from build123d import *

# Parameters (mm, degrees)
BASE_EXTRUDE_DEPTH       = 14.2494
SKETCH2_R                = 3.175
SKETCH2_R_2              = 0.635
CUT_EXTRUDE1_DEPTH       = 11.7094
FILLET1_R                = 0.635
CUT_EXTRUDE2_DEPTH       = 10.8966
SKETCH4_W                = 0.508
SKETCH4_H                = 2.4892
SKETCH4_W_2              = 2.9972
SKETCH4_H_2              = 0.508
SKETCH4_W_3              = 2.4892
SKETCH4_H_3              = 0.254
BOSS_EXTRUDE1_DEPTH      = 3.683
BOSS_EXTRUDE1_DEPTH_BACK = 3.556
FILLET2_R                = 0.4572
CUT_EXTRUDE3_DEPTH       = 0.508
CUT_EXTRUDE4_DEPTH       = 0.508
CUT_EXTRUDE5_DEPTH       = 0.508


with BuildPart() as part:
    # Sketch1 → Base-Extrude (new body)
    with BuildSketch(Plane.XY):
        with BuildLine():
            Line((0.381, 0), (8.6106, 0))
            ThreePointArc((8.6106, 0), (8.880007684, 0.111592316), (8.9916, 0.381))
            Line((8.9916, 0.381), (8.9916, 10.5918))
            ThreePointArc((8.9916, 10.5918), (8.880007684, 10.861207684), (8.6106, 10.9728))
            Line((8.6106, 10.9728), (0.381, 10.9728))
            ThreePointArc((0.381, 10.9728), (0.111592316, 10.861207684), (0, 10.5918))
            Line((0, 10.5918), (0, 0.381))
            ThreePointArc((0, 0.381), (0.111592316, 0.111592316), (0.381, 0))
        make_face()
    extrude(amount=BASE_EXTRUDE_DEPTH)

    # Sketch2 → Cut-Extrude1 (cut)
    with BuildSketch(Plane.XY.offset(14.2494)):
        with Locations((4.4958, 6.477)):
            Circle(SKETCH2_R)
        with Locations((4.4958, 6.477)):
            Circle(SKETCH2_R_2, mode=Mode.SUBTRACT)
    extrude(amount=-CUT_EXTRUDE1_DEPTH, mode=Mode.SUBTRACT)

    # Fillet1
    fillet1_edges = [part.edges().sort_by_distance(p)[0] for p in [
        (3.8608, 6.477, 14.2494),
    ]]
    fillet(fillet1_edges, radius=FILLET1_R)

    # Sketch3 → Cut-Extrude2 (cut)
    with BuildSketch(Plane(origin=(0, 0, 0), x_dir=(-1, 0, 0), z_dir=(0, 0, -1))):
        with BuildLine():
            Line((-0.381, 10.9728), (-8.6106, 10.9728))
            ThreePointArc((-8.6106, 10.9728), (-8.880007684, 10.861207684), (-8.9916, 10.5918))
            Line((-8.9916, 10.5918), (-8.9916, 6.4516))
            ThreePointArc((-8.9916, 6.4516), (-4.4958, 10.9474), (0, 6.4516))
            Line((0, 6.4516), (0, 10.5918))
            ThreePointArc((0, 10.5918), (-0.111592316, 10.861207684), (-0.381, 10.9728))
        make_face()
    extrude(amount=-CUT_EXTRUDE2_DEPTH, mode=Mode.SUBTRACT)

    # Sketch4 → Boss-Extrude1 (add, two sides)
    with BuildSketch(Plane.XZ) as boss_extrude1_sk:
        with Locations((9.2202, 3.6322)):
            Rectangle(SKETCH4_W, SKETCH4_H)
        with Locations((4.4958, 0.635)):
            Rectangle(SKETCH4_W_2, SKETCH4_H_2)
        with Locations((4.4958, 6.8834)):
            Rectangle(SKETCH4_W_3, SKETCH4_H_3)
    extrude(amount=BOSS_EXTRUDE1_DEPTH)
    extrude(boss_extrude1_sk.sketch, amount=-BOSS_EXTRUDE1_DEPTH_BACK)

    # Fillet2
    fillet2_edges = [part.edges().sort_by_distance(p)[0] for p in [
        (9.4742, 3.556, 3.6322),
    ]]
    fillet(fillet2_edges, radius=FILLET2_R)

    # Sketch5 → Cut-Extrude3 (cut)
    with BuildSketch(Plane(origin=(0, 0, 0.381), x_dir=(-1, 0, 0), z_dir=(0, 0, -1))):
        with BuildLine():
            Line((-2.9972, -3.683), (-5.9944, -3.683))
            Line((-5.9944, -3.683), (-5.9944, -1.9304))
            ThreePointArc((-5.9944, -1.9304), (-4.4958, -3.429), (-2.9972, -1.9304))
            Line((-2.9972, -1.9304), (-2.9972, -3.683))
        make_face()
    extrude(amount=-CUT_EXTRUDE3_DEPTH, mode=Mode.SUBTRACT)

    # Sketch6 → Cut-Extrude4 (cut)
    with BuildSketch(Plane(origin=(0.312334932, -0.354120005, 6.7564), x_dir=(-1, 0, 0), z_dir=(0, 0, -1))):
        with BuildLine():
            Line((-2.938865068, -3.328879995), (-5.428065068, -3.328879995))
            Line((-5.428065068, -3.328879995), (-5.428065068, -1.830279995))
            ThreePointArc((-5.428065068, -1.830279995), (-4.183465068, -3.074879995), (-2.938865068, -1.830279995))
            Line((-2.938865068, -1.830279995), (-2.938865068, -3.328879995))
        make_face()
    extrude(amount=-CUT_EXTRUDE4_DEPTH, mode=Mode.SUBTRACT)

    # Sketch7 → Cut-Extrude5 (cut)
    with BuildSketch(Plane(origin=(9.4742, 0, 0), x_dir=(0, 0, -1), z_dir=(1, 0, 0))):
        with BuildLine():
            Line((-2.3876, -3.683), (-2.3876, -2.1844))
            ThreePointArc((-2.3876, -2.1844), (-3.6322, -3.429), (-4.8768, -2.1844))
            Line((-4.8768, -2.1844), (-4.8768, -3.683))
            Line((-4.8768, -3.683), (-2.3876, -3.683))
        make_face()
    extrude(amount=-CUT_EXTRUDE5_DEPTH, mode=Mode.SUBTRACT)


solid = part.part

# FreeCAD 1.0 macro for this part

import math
import FreeCAD as App
import Part
import Sketcher
from FreeCAD import Vector
Q = App.Units.Quantity


def edges_at(feature, points):
    """Names of the edges that pass closest to the given points."""
    edges = feature.Shape.Edges
    near = lambda p: min(range(len(edges)), key=lambda i: edges[i].distToShape(Part.Vertex(*p))[0])
    return sorted({f"Edge{near(p) + 1}" for p in points})


def add_polygon(sketch, points):
    """Adds a closed chain of lines whose ends are joined by coincident constraints."""
    first, n = sketch.GeometryCount, len(points)
    for a, b in zip(points, points[1:] + points[:1]):
        sketch.addGeometry(Part.LineSegment(App.Vector(*a, 0), App.Vector(*b, 0)), False)
    for i in range(n):
        sketch.addConstraint(Sketcher.Constraint("Coincident", first + i, 2, first + (i + 1) % n, 1))

doc = App.newDocument("Part")
params = doc.addObject("Spreadsheet::Sheet", "Params")
for row, (alias, value) in enumerate([
    ("sketch1_radius", "0.015 in"),
    ("sketch1_width", "0.324 in"),
    ("sketch1_height", "0.402 in"),
    ("pad1_length", "0.561 in"),
    ("sketch2_diameter", "0.25 in"),
    ("sketch2_diameter2", "0.05 in"),
    ("pocket1_length", "0.461 in"),
    ("fillet_radius", "0.025 in"),
    ("sketch3_radius", "0.015 in"),
    ("sketch3_radius2", "0.177 in"),
    ("sketch3_height", "0.163 in"),
    ("pocket2_length", "0.429 in"),
    ("sketch4_width", "0.02 in"),
    ("sketch4_height", "0.01 in"),
    ("sketch4_width2", "0.118 in"),
    ("sketch4_width3", "0.098 in"),
    ("pad2_length", "0.145 in"),
    ("pad2_length2", "0.14 in"),
    ("fillet2_radius", "0.018 in"),
    ("sketch5_radius", "0.059 in"),
    ("sketch5_height", "0.069 in"),
    ("pocket3_length", "0.02 in"),
    ("sketch6_radius", "0.049 in"),
    ("sketch6_height", "0.059 in"),
    ("pocket4_length", "0.02 in"),
    ("sketch7_radius", "0.049 in"),
    ("sketch7_width", "0.059 in"),
    ("pocket5_length", "0.02 in"),
], start=1):
    params.set(f"A{row}", alias)
    params.set(f"B{row}", "=" + value)
    params.setAlias(f"B{row}", alias)

body = doc.addObject("PartDesign::Body", "Body")

# Sketch on XY plane
sketch1 = body.newObject("Sketcher::SketchObject", "Sketch")
sketch1.AttachmentSupport = (doc.getObject("XY_Plane"), [""])
sketch1.MapMode = "FlatFace"
sketch1.addGeometry(Part.LineSegment(Vector(0.38, 0, 0), Vector(8.61, 0, 0)), False)
sketch1.addGeometry(Part.ArcOfCircle(Part.Circle(Vector(8.61, 0.38, 0), Vector(0, 0, 1), 0.38), math.radians(-90), math.radians(0)), False)
sketch1.addGeometry(Part.LineSegment(Vector(8.99, 0.38, 0), Vector(8.99, 10.59, 0)), False)
sketch1.addGeometry(Part.ArcOfCircle(Part.Circle(Vector(8.61, 10.59, 0), Vector(0, 0, 1), 0.38), math.radians(0), math.radians(90)), False)
sketch1.addGeometry(Part.LineSegment(Vector(8.61, 10.97, 0), Vector(0.38, 10.97, 0)), False)
sketch1.addGeometry(Part.ArcOfCircle(Part.Circle(Vector(0.38, 10.59, 0), Vector(0, 0, 1), 0.38), math.radians(90), math.radians(180)), False)
sketch1.addGeometry(Part.LineSegment(Vector(0, 10.59, 0), Vector(0, 0.38, 0)), False)
sketch1.addGeometry(Part.ArcOfCircle(Part.Circle(Vector(0.38, 0.38, 0), Vector(0, 0, 1), 0.38), math.radians(180), math.radians(270)), False)
sketch1.addConstraint(Sketcher.Constraint("Tangent", 0, 2, 1, 1))
sketch1.addConstraint(Sketcher.Constraint("Tangent", 1, 2, 2, 1))
sketch1.addConstraint(Sketcher.Constraint("Tangent", 2, 2, 3, 1))
sketch1.addConstraint(Sketcher.Constraint("Tangent", 3, 2, 4, 1))
sketch1.addConstraint(Sketcher.Constraint("Tangent", 4, 2, 5, 1))
sketch1.addConstraint(Sketcher.Constraint("Tangent", 5, 2, 6, 1))
sketch1.addConstraint(Sketcher.Constraint("Tangent", 6, 2, 7, 1))
sketch1.addConstraint(Sketcher.Constraint("Tangent", 7, 2, 0, 1))
sketch1.addConstraint(Sketcher.Constraint("Horizontal", 0))
sketch1.addConstraint(Sketcher.Constraint("Vertical", 2))
sketch1.addConstraint(Sketcher.Constraint("Horizontal", 4))
sketch1.addConstraint(Sketcher.Constraint("Vertical", 6))
sketch1.addConstraint(Sketcher.Constraint("Equal", 1, 3))
sketch1.addConstraint(Sketcher.Constraint("Equal", 3, 5))
sketch1.addConstraint(Sketcher.Constraint("Equal", 5, 7))
sketch1.addConstraint(Sketcher.Constraint("PointOnObject", 0, 2, -1))
sketch1.addConstraint(Sketcher.Constraint("PointOnObject", 5, 2, -2))
sketch1.addConstraint(Sketcher.Constraint("Radius", 1, Q("0.015 in")))
sketch1.addConstraint(Sketcher.Constraint("DistanceX", 0, 1, 0, 2, Q("0.324 in")))
sketch1.addConstraint(Sketcher.Constraint("DistanceY", 2, 1, 2, 2, Q("0.402 in")))
sketch1.setExpression("Constraints[17]", "Params.sketch1_radius")
sketch1.setExpression("Constraints[18]", "Params.sketch1_width")
sketch1.setExpression("Constraints[19]", "Params.sketch1_height")
pad1 = body.newObject("PartDesign::Pad", "Pad")
pad1.Profile = sketch1
pad1.setExpression("Length", "Params.pad1_length")

# Sketch on XY plane
sketch2 = body.newObject("Sketcher::SketchObject", "Sketch001")
sketch2.AttachmentSupport = (doc.getObject("XY_Plane"), [""])
sketch2.MapMode = "FlatFace"
sketch2.AttachmentOffset = App.Placement(Vector(0, 0, 0.561 * 25.4), App.Rotation())
sketch2.addGeometry(Part.Circle(Vector(4.5, 6.5, 0), Vector(0, 0, 1), 3.2), False)
sketch2.addGeometry(Part.Circle(Vector(4.5, 6.5, 0), Vector(0, 0, 1), 0.6), False)
sketch2.addConstraint(Sketcher.Constraint("Coincident", 1, 3, 0, 3))
sketch2.addConstraint(Sketcher.Constraint("Diameter", 0, Q("0.25 in")))
sketch2.addConstraint(Sketcher.Constraint("Diameter", 1, Q("0.05 in")))
sketch2.addConstraint(Sketcher.Constraint("DistanceX", -1, 1, 0, 3, Q("0.177 in")))
sketch2.addConstraint(Sketcher.Constraint("DistanceY", -1, 1, 0, 3, Q("0.255 in")))
sketch2.setExpression("Constraints[1]", "Params.sketch2_diameter")
sketch2.setExpression("Constraints[2]", "Params.sketch2_diameter2")
pocket1 = body.newObject("PartDesign::Pocket", "Pocket")
pocket1.Profile = sketch2
pocket1.setExpression("Length", "Params.pocket1_length")
doc.recompute()

fillet = body.newObject("PartDesign::Fillet", "Fillet")
fillet.Base = (pocket1, edges_at(pocket1, [(3.861, 6.477, 14.249)]))
fillet.setExpression("Radius", "Params.fillet_radius")

# Sketch on XY plane
sketch3 = body.newObject("Sketcher::SketchObject", "Sketch002")
sketch3.AttachmentSupport = (doc.getObject("XY_Plane"), [""])
sketch3.MapMode = "FlatFace"
sketch3.addGeometry(Part.LineSegment(Vector(0.38, 10.97, 0), Vector(8.61, 10.97, 0)), False)
sketch3.addGeometry(Part.ArcOfCircle(Part.Circle(Vector(8.61, 10.59, 0), Vector(0, 0, 1), 0.38), math.radians(0), math.radians(90)), False)
sketch3.addGeometry(Part.LineSegment(Vector(8.99, 10.59, 0), Vector(8.99, 6.45, 0)), False)
sketch3.addGeometry(Part.ArcOfCircle(Part.Circle(Vector(4.5, 6.45, 0), Vector(0, 0, 1), 4.5), math.radians(0), math.radians(180)), False)
sketch3.addGeometry(Part.LineSegment(Vector(0, 6.45, 0), Vector(0, 10.59, 0)), False)
sketch3.addGeometry(Part.ArcOfCircle(Part.Circle(Vector(0.38, 10.59, 0), Vector(0, 0, 1), 0.38), math.radians(90), math.radians(180)), False)
sketch3.addConstraint(Sketcher.Constraint("Tangent", 0, 2, 1, 2))
sketch3.addConstraint(Sketcher.Constraint("Tangent", 1, 1, 2, 1))
sketch3.addConstraint(Sketcher.Constraint("Tangent", 2, 2, 3, 1))
sketch3.addConstraint(Sketcher.Constraint("Tangent", 3, 2, 4, 1))
sketch3.addConstraint(Sketcher.Constraint("Tangent", 4, 2, 5, 2))
sketch3.addConstraint(Sketcher.Constraint("Tangent", 5, 1, 0, 1))
sketch3.addConstraint(Sketcher.Constraint("Horizontal", 0))
sketch3.addConstraint(Sketcher.Constraint("Vertical", 2))
sketch3.addConstraint(Sketcher.Constraint("Vertical", 4))
sketch3.addConstraint(Sketcher.Constraint("Equal", 1, 5))
sketch3.addConstraint(Sketcher.Constraint("PointOnObject", 3, 2, -2))
sketch3.addConstraint(Sketcher.Constraint("Radius", 1, Q("0.015 in")))
sketch3.addConstraint(Sketcher.Constraint("Radius", 3, Q("0.177 in")))
sketch3.addConstraint(Sketcher.Constraint("DistanceY", 2, 2, 2, 1, Q("0.163 in")))
sketch3.addConstraint(Sketcher.Constraint("DistanceY", -1, 1, 1, 3, Q("0.417 in")))
sketch3.setExpression("Constraints[11]", "Params.sketch3_radius")
sketch3.setExpression("Constraints[12]", "Params.sketch3_radius2")
sketch3.setExpression("Constraints[13]", "Params.sketch3_height")
pocket2 = body.newObject("PartDesign::Pocket", "Pocket001")
pocket2.Profile = sketch3
pocket2.setExpression("Length", "Params.pocket2_length")
pocket2.Reversed = True

# Sketch on XZ plane
sketch4 = body.newObject("Sketcher::SketchObject", "Sketch003")
sketch4.AttachmentSupport = (doc.getObject("XZ_Plane"), [""])
sketch4.MapMode = "FlatFace"
add_polygon(sketch4, [(8.97, 4.88), (8.97, 2.39), (9.47, 2.39), (9.47, 4.88)])  # lines 0-3
add_polygon(sketch4, [(3, 0.89), (3, 0.38), (5.99, 0.38), (5.99, 0.89)])  # lines 4-7
add_polygon(sketch4, [(3.25, 7.01), (3.25, 6.76), (5.74, 6.76), (5.74, 7.01)])  # lines 8-11
sketch4.addConstraint(Sketcher.Constraint("Vertical", 0))
sketch4.addConstraint(Sketcher.Constraint("Horizontal", 1))
sketch4.addConstraint(Sketcher.Constraint("Vertical", 2))
sketch4.addConstraint(Sketcher.Constraint("Horizontal", 3))
sketch4.addConstraint(Sketcher.Constraint("Vertical", 4))
sketch4.addConstraint(Sketcher.Constraint("Horizontal", 5))
sketch4.addConstraint(Sketcher.Constraint("Vertical", 6))
sketch4.addConstraint(Sketcher.Constraint("Horizontal", 7))
sketch4.addConstraint(Sketcher.Constraint("Vertical", 8))
sketch4.addConstraint(Sketcher.Constraint("Horizontal", 9))
sketch4.addConstraint(Sketcher.Constraint("Vertical", 10))
sketch4.addConstraint(Sketcher.Constraint("Horizontal", 11))
sketch4.addConstraint(Sketcher.Constraint("Equal", 11, 0))
sketch4.addConstraint(Sketcher.Constraint("Equal", 3, 4))
sketch4.addConstraint(Sketcher.Constraint("DistanceX", 1, 1, 1, 2, Q("0.02 in")))
sketch4.addConstraint(Sketcher.Constraint("DistanceY", 8, 2, 8, 1, Q("0.01 in")))
sketch4.addConstraint(Sketcher.Constraint("DistanceX", 5, 1, 5, 2, Q("0.118 in")))
sketch4.addConstraint(Sketcher.Constraint("DistanceX", 9, 1, 9, 2, Q("0.098 in")))
sketch4.addConstraint(Sketcher.Constraint("DistanceX", 7, 2, 8, 2, Q("0.01 in")))
sketch4.addConstraint(Sketcher.Constraint("DistanceX", -1, 1, 0, 2, Q("0.353 in")))
sketch4.addConstraint(Sketcher.Constraint("DistanceY", -1, 1, 0, 2, Q("0.094 in")))
sketch4.addConstraint(Sketcher.Constraint("DistanceX", -1, 1, 4, 2, Q("0.118 in")))
sketch4.addConstraint(Sketcher.Constraint("DistanceY", -1, 1, 4, 2, Q("0.015 in")))
sketch4.addConstraint(Sketcher.Constraint("DistanceY", -1, 1, 8, 2, Q("0.266 in")))
sketch4.setExpression("Constraints[26]", "Params.sketch4_width")
sketch4.setExpression("Constraints[27]", "Params.sketch4_height")
sketch4.setExpression("Constraints[28]", "Params.sketch4_width2")
sketch4.setExpression("Constraints[29]", "Params.sketch4_width3")
pad2 = body.newObject("PartDesign::Pad", "Pad001")
pad2.Profile = sketch4
pad2.Type = "TwoLengths"
pad2.setExpression("Length", "Params.pad2_length")
pad2.setExpression("Length2", "Params.pad2_length2")
doc.recompute()

fillet2 = body.newObject("PartDesign::Fillet", "Fillet001")
fillet2.Base = (pad2, edges_at(pad2, [(9.474, 3.556, 3.632)]))
fillet2.setExpression("Radius", "Params.fillet2_radius")

# Sketch on XY plane
sketch5 = body.newObject("Sketcher::SketchObject", "Sketch004")
sketch5.AttachmentSupport = (doc.getObject("XY_Plane"), [""])
sketch5.MapMode = "FlatFace"
sketch5.AttachmentOffset = App.Placement(Vector(0, 0, 0.015 * 25.4), App.Rotation())
sketch5.addGeometry(Part.LineSegment(Vector(6, -3.7, 0), Vector(3, -3.7, 0)), False)
sketch5.addGeometry(Part.LineSegment(Vector(3, -3.7, 0), Vector(3, -1.9, 0)), False)
sketch5.addGeometry(Part.ArcOfCircle(Part.Circle(Vector(4.5, -1.9, 0), Vector(0, 0, 1), 1.5), math.radians(180), math.radians(360)), False)
sketch5.addGeometry(Part.LineSegment(Vector(6, -1.9, 0), Vector(6, -3.7, 0)), False)
sketch5.addConstraint(Sketcher.Constraint("Coincident", 0, 2, 1, 1))
sketch5.addConstraint(Sketcher.Constraint("Tangent", 1, 2, 2, 1))
sketch5.addConstraint(Sketcher.Constraint("Tangent", 2, 2, 3, 1))
sketch5.addConstraint(Sketcher.Constraint("Coincident", 3, 2, 0, 1))
sketch5.addConstraint(Sketcher.Constraint("Horizontal", 0))
sketch5.addConstraint(Sketcher.Constraint("Vertical", 1))
sketch5.addConstraint(Sketcher.Constraint("Vertical", 3))
sketch5.addConstraint(Sketcher.Constraint("Radius", 2, Q("0.059 in")))
sketch5.addConstraint(Sketcher.Constraint("DistanceY", 1, 1, 1, 2, Q("0.069 in")))
sketch5.addConstraint(Sketcher.Constraint("DistanceX", -1, 1, 2, 3, Q("0.177 in")))
sketch5.addConstraint(Sketcher.Constraint("DistanceY", 2, 3, -1, 1, Q("0.076 in")))
sketch5.setExpression("Constraints[7]", "Params.sketch5_radius")
sketch5.setExpression("Constraints[8]", "Params.sketch5_height")
pocket3 = body.newObject("PartDesign::Pocket", "Pocket002")
pocket3.Profile = sketch5
pocket3.setExpression("Length", "Params.pocket3_length")
pocket3.Reversed = True

# Sketch on XY plane
sketch6 = body.newObject("Sketcher::SketchObject", "Sketch005")
sketch6.AttachmentSupport = (doc.getObject("XY_Plane"), [""])
sketch6.MapMode = "FlatFace"
sketch6.AttachmentOffset = App.Placement(Vector(0, 0, 0.266 * 25.4), App.Rotation())
sketch6.addGeometry(Part.LineSegment(Vector(5.7, -3.7, 0), Vector(3.3, -3.7, 0)), False)
sketch6.addGeometry(Part.LineSegment(Vector(3.3, -3.7, 0), Vector(3.3, -2.2, 0)), False)
sketch6.addGeometry(Part.ArcOfCircle(Part.Circle(Vector(4.5, -2.2, 0), Vector(0, 0, 1), 1.2), math.radians(180), math.radians(360)), False)
sketch6.addGeometry(Part.LineSegment(Vector(5.7, -2.2, 0), Vector(5.7, -3.7, 0)), False)
sketch6.addConstraint(Sketcher.Constraint("Coincident", 0, 2, 1, 1))
sketch6.addConstraint(Sketcher.Constraint("Tangent", 1, 2, 2, 1))
sketch6.addConstraint(Sketcher.Constraint("Tangent", 2, 2, 3, 1))
sketch6.addConstraint(Sketcher.Constraint("Coincident", 3, 2, 0, 1))
sketch6.addConstraint(Sketcher.Constraint("Horizontal", 0))
sketch6.addConstraint(Sketcher.Constraint("Vertical", 1))
sketch6.addConstraint(Sketcher.Constraint("Vertical", 3))
sketch6.addConstraint(Sketcher.Constraint("Radius", 2, Q("0.049 in")))
sketch6.addConstraint(Sketcher.Constraint("DistanceY", 1, 1, 1, 2, Q("0.059 in")))
sketch6.addConstraint(Sketcher.Constraint("DistanceX", -1, 1, 2, 3, Q("0.177 in")))
sketch6.addConstraint(Sketcher.Constraint("DistanceY", 2, 3, -1, 1, Q("0.086 in")))
sketch6.setExpression("Constraints[7]", "Params.sketch6_radius")
sketch6.setExpression("Constraints[8]", "Params.sketch6_height")
pocket4 = body.newObject("PartDesign::Pocket", "Pocket003")
pocket4.Profile = sketch6
pocket4.setExpression("Length", "Params.pocket4_length")
pocket4.Reversed = True

# Sketch on YZ plane
sketch7 = body.newObject("Sketcher::SketchObject", "Sketch006")
sketch7.AttachmentSupport = (doc.getObject("YZ_Plane"), [""])
sketch7.MapMode = "FlatFace"
sketch7.AttachmentOffset = App.Placement(Vector(0, 0, 0.373 * 25.4), App.Rotation())
sketch7.addGeometry(Part.LineSegment(Vector(-3.7, 2.4, 0), Vector(-2.2, 2.4, 0)), False)
sketch7.addGeometry(Part.ArcOfCircle(Part.Circle(Vector(-2.2, 3.6, 0), Vector(0, 0, 1), 1.2), math.radians(90), math.radians(270)), False)
sketch7.addGeometry(Part.LineSegment(Vector(-2.2, 4.9, 0), Vector(-3.7, 4.9, 0)), False)
sketch7.addGeometry(Part.LineSegment(Vector(-3.7, 4.9, 0), Vector(-3.7, 2.4, 0)), False)
sketch7.addConstraint(Sketcher.Constraint("Tangent", 0, 2, 1, 2))
sketch7.addConstraint(Sketcher.Constraint("Tangent", 1, 1, 2, 1))
sketch7.addConstraint(Sketcher.Constraint("Coincident", 2, 2, 3, 1))
sketch7.addConstraint(Sketcher.Constraint("Coincident", 3, 2, 0, 1))
sketch7.addConstraint(Sketcher.Constraint("Horizontal", 0))
sketch7.addConstraint(Sketcher.Constraint("Horizontal", 2))
sketch7.addConstraint(Sketcher.Constraint("Vertical", 3))
sketch7.addConstraint(Sketcher.Constraint("Radius", 1, Q("0.049 in")))
sketch7.addConstraint(Sketcher.Constraint("DistanceX", 0, 1, 0, 2, Q("0.059 in")))
sketch7.addConstraint(Sketcher.Constraint("DistanceX", 1, 3, -1, 1, Q("0.086 in")))
sketch7.addConstraint(Sketcher.Constraint("DistanceY", -1, 1, 1, 3, Q("0.143 in")))
sketch7.setExpression("Constraints[7]", "Params.sketch7_radius")
sketch7.setExpression("Constraints[8]", "Params.sketch7_width")
pocket5 = body.newObject("PartDesign::Pocket", "Pocket004")
pocket5.Profile = sketch7
pocket5.setExpression("Length", "Params.pocket5_length")

doc.recompute()
